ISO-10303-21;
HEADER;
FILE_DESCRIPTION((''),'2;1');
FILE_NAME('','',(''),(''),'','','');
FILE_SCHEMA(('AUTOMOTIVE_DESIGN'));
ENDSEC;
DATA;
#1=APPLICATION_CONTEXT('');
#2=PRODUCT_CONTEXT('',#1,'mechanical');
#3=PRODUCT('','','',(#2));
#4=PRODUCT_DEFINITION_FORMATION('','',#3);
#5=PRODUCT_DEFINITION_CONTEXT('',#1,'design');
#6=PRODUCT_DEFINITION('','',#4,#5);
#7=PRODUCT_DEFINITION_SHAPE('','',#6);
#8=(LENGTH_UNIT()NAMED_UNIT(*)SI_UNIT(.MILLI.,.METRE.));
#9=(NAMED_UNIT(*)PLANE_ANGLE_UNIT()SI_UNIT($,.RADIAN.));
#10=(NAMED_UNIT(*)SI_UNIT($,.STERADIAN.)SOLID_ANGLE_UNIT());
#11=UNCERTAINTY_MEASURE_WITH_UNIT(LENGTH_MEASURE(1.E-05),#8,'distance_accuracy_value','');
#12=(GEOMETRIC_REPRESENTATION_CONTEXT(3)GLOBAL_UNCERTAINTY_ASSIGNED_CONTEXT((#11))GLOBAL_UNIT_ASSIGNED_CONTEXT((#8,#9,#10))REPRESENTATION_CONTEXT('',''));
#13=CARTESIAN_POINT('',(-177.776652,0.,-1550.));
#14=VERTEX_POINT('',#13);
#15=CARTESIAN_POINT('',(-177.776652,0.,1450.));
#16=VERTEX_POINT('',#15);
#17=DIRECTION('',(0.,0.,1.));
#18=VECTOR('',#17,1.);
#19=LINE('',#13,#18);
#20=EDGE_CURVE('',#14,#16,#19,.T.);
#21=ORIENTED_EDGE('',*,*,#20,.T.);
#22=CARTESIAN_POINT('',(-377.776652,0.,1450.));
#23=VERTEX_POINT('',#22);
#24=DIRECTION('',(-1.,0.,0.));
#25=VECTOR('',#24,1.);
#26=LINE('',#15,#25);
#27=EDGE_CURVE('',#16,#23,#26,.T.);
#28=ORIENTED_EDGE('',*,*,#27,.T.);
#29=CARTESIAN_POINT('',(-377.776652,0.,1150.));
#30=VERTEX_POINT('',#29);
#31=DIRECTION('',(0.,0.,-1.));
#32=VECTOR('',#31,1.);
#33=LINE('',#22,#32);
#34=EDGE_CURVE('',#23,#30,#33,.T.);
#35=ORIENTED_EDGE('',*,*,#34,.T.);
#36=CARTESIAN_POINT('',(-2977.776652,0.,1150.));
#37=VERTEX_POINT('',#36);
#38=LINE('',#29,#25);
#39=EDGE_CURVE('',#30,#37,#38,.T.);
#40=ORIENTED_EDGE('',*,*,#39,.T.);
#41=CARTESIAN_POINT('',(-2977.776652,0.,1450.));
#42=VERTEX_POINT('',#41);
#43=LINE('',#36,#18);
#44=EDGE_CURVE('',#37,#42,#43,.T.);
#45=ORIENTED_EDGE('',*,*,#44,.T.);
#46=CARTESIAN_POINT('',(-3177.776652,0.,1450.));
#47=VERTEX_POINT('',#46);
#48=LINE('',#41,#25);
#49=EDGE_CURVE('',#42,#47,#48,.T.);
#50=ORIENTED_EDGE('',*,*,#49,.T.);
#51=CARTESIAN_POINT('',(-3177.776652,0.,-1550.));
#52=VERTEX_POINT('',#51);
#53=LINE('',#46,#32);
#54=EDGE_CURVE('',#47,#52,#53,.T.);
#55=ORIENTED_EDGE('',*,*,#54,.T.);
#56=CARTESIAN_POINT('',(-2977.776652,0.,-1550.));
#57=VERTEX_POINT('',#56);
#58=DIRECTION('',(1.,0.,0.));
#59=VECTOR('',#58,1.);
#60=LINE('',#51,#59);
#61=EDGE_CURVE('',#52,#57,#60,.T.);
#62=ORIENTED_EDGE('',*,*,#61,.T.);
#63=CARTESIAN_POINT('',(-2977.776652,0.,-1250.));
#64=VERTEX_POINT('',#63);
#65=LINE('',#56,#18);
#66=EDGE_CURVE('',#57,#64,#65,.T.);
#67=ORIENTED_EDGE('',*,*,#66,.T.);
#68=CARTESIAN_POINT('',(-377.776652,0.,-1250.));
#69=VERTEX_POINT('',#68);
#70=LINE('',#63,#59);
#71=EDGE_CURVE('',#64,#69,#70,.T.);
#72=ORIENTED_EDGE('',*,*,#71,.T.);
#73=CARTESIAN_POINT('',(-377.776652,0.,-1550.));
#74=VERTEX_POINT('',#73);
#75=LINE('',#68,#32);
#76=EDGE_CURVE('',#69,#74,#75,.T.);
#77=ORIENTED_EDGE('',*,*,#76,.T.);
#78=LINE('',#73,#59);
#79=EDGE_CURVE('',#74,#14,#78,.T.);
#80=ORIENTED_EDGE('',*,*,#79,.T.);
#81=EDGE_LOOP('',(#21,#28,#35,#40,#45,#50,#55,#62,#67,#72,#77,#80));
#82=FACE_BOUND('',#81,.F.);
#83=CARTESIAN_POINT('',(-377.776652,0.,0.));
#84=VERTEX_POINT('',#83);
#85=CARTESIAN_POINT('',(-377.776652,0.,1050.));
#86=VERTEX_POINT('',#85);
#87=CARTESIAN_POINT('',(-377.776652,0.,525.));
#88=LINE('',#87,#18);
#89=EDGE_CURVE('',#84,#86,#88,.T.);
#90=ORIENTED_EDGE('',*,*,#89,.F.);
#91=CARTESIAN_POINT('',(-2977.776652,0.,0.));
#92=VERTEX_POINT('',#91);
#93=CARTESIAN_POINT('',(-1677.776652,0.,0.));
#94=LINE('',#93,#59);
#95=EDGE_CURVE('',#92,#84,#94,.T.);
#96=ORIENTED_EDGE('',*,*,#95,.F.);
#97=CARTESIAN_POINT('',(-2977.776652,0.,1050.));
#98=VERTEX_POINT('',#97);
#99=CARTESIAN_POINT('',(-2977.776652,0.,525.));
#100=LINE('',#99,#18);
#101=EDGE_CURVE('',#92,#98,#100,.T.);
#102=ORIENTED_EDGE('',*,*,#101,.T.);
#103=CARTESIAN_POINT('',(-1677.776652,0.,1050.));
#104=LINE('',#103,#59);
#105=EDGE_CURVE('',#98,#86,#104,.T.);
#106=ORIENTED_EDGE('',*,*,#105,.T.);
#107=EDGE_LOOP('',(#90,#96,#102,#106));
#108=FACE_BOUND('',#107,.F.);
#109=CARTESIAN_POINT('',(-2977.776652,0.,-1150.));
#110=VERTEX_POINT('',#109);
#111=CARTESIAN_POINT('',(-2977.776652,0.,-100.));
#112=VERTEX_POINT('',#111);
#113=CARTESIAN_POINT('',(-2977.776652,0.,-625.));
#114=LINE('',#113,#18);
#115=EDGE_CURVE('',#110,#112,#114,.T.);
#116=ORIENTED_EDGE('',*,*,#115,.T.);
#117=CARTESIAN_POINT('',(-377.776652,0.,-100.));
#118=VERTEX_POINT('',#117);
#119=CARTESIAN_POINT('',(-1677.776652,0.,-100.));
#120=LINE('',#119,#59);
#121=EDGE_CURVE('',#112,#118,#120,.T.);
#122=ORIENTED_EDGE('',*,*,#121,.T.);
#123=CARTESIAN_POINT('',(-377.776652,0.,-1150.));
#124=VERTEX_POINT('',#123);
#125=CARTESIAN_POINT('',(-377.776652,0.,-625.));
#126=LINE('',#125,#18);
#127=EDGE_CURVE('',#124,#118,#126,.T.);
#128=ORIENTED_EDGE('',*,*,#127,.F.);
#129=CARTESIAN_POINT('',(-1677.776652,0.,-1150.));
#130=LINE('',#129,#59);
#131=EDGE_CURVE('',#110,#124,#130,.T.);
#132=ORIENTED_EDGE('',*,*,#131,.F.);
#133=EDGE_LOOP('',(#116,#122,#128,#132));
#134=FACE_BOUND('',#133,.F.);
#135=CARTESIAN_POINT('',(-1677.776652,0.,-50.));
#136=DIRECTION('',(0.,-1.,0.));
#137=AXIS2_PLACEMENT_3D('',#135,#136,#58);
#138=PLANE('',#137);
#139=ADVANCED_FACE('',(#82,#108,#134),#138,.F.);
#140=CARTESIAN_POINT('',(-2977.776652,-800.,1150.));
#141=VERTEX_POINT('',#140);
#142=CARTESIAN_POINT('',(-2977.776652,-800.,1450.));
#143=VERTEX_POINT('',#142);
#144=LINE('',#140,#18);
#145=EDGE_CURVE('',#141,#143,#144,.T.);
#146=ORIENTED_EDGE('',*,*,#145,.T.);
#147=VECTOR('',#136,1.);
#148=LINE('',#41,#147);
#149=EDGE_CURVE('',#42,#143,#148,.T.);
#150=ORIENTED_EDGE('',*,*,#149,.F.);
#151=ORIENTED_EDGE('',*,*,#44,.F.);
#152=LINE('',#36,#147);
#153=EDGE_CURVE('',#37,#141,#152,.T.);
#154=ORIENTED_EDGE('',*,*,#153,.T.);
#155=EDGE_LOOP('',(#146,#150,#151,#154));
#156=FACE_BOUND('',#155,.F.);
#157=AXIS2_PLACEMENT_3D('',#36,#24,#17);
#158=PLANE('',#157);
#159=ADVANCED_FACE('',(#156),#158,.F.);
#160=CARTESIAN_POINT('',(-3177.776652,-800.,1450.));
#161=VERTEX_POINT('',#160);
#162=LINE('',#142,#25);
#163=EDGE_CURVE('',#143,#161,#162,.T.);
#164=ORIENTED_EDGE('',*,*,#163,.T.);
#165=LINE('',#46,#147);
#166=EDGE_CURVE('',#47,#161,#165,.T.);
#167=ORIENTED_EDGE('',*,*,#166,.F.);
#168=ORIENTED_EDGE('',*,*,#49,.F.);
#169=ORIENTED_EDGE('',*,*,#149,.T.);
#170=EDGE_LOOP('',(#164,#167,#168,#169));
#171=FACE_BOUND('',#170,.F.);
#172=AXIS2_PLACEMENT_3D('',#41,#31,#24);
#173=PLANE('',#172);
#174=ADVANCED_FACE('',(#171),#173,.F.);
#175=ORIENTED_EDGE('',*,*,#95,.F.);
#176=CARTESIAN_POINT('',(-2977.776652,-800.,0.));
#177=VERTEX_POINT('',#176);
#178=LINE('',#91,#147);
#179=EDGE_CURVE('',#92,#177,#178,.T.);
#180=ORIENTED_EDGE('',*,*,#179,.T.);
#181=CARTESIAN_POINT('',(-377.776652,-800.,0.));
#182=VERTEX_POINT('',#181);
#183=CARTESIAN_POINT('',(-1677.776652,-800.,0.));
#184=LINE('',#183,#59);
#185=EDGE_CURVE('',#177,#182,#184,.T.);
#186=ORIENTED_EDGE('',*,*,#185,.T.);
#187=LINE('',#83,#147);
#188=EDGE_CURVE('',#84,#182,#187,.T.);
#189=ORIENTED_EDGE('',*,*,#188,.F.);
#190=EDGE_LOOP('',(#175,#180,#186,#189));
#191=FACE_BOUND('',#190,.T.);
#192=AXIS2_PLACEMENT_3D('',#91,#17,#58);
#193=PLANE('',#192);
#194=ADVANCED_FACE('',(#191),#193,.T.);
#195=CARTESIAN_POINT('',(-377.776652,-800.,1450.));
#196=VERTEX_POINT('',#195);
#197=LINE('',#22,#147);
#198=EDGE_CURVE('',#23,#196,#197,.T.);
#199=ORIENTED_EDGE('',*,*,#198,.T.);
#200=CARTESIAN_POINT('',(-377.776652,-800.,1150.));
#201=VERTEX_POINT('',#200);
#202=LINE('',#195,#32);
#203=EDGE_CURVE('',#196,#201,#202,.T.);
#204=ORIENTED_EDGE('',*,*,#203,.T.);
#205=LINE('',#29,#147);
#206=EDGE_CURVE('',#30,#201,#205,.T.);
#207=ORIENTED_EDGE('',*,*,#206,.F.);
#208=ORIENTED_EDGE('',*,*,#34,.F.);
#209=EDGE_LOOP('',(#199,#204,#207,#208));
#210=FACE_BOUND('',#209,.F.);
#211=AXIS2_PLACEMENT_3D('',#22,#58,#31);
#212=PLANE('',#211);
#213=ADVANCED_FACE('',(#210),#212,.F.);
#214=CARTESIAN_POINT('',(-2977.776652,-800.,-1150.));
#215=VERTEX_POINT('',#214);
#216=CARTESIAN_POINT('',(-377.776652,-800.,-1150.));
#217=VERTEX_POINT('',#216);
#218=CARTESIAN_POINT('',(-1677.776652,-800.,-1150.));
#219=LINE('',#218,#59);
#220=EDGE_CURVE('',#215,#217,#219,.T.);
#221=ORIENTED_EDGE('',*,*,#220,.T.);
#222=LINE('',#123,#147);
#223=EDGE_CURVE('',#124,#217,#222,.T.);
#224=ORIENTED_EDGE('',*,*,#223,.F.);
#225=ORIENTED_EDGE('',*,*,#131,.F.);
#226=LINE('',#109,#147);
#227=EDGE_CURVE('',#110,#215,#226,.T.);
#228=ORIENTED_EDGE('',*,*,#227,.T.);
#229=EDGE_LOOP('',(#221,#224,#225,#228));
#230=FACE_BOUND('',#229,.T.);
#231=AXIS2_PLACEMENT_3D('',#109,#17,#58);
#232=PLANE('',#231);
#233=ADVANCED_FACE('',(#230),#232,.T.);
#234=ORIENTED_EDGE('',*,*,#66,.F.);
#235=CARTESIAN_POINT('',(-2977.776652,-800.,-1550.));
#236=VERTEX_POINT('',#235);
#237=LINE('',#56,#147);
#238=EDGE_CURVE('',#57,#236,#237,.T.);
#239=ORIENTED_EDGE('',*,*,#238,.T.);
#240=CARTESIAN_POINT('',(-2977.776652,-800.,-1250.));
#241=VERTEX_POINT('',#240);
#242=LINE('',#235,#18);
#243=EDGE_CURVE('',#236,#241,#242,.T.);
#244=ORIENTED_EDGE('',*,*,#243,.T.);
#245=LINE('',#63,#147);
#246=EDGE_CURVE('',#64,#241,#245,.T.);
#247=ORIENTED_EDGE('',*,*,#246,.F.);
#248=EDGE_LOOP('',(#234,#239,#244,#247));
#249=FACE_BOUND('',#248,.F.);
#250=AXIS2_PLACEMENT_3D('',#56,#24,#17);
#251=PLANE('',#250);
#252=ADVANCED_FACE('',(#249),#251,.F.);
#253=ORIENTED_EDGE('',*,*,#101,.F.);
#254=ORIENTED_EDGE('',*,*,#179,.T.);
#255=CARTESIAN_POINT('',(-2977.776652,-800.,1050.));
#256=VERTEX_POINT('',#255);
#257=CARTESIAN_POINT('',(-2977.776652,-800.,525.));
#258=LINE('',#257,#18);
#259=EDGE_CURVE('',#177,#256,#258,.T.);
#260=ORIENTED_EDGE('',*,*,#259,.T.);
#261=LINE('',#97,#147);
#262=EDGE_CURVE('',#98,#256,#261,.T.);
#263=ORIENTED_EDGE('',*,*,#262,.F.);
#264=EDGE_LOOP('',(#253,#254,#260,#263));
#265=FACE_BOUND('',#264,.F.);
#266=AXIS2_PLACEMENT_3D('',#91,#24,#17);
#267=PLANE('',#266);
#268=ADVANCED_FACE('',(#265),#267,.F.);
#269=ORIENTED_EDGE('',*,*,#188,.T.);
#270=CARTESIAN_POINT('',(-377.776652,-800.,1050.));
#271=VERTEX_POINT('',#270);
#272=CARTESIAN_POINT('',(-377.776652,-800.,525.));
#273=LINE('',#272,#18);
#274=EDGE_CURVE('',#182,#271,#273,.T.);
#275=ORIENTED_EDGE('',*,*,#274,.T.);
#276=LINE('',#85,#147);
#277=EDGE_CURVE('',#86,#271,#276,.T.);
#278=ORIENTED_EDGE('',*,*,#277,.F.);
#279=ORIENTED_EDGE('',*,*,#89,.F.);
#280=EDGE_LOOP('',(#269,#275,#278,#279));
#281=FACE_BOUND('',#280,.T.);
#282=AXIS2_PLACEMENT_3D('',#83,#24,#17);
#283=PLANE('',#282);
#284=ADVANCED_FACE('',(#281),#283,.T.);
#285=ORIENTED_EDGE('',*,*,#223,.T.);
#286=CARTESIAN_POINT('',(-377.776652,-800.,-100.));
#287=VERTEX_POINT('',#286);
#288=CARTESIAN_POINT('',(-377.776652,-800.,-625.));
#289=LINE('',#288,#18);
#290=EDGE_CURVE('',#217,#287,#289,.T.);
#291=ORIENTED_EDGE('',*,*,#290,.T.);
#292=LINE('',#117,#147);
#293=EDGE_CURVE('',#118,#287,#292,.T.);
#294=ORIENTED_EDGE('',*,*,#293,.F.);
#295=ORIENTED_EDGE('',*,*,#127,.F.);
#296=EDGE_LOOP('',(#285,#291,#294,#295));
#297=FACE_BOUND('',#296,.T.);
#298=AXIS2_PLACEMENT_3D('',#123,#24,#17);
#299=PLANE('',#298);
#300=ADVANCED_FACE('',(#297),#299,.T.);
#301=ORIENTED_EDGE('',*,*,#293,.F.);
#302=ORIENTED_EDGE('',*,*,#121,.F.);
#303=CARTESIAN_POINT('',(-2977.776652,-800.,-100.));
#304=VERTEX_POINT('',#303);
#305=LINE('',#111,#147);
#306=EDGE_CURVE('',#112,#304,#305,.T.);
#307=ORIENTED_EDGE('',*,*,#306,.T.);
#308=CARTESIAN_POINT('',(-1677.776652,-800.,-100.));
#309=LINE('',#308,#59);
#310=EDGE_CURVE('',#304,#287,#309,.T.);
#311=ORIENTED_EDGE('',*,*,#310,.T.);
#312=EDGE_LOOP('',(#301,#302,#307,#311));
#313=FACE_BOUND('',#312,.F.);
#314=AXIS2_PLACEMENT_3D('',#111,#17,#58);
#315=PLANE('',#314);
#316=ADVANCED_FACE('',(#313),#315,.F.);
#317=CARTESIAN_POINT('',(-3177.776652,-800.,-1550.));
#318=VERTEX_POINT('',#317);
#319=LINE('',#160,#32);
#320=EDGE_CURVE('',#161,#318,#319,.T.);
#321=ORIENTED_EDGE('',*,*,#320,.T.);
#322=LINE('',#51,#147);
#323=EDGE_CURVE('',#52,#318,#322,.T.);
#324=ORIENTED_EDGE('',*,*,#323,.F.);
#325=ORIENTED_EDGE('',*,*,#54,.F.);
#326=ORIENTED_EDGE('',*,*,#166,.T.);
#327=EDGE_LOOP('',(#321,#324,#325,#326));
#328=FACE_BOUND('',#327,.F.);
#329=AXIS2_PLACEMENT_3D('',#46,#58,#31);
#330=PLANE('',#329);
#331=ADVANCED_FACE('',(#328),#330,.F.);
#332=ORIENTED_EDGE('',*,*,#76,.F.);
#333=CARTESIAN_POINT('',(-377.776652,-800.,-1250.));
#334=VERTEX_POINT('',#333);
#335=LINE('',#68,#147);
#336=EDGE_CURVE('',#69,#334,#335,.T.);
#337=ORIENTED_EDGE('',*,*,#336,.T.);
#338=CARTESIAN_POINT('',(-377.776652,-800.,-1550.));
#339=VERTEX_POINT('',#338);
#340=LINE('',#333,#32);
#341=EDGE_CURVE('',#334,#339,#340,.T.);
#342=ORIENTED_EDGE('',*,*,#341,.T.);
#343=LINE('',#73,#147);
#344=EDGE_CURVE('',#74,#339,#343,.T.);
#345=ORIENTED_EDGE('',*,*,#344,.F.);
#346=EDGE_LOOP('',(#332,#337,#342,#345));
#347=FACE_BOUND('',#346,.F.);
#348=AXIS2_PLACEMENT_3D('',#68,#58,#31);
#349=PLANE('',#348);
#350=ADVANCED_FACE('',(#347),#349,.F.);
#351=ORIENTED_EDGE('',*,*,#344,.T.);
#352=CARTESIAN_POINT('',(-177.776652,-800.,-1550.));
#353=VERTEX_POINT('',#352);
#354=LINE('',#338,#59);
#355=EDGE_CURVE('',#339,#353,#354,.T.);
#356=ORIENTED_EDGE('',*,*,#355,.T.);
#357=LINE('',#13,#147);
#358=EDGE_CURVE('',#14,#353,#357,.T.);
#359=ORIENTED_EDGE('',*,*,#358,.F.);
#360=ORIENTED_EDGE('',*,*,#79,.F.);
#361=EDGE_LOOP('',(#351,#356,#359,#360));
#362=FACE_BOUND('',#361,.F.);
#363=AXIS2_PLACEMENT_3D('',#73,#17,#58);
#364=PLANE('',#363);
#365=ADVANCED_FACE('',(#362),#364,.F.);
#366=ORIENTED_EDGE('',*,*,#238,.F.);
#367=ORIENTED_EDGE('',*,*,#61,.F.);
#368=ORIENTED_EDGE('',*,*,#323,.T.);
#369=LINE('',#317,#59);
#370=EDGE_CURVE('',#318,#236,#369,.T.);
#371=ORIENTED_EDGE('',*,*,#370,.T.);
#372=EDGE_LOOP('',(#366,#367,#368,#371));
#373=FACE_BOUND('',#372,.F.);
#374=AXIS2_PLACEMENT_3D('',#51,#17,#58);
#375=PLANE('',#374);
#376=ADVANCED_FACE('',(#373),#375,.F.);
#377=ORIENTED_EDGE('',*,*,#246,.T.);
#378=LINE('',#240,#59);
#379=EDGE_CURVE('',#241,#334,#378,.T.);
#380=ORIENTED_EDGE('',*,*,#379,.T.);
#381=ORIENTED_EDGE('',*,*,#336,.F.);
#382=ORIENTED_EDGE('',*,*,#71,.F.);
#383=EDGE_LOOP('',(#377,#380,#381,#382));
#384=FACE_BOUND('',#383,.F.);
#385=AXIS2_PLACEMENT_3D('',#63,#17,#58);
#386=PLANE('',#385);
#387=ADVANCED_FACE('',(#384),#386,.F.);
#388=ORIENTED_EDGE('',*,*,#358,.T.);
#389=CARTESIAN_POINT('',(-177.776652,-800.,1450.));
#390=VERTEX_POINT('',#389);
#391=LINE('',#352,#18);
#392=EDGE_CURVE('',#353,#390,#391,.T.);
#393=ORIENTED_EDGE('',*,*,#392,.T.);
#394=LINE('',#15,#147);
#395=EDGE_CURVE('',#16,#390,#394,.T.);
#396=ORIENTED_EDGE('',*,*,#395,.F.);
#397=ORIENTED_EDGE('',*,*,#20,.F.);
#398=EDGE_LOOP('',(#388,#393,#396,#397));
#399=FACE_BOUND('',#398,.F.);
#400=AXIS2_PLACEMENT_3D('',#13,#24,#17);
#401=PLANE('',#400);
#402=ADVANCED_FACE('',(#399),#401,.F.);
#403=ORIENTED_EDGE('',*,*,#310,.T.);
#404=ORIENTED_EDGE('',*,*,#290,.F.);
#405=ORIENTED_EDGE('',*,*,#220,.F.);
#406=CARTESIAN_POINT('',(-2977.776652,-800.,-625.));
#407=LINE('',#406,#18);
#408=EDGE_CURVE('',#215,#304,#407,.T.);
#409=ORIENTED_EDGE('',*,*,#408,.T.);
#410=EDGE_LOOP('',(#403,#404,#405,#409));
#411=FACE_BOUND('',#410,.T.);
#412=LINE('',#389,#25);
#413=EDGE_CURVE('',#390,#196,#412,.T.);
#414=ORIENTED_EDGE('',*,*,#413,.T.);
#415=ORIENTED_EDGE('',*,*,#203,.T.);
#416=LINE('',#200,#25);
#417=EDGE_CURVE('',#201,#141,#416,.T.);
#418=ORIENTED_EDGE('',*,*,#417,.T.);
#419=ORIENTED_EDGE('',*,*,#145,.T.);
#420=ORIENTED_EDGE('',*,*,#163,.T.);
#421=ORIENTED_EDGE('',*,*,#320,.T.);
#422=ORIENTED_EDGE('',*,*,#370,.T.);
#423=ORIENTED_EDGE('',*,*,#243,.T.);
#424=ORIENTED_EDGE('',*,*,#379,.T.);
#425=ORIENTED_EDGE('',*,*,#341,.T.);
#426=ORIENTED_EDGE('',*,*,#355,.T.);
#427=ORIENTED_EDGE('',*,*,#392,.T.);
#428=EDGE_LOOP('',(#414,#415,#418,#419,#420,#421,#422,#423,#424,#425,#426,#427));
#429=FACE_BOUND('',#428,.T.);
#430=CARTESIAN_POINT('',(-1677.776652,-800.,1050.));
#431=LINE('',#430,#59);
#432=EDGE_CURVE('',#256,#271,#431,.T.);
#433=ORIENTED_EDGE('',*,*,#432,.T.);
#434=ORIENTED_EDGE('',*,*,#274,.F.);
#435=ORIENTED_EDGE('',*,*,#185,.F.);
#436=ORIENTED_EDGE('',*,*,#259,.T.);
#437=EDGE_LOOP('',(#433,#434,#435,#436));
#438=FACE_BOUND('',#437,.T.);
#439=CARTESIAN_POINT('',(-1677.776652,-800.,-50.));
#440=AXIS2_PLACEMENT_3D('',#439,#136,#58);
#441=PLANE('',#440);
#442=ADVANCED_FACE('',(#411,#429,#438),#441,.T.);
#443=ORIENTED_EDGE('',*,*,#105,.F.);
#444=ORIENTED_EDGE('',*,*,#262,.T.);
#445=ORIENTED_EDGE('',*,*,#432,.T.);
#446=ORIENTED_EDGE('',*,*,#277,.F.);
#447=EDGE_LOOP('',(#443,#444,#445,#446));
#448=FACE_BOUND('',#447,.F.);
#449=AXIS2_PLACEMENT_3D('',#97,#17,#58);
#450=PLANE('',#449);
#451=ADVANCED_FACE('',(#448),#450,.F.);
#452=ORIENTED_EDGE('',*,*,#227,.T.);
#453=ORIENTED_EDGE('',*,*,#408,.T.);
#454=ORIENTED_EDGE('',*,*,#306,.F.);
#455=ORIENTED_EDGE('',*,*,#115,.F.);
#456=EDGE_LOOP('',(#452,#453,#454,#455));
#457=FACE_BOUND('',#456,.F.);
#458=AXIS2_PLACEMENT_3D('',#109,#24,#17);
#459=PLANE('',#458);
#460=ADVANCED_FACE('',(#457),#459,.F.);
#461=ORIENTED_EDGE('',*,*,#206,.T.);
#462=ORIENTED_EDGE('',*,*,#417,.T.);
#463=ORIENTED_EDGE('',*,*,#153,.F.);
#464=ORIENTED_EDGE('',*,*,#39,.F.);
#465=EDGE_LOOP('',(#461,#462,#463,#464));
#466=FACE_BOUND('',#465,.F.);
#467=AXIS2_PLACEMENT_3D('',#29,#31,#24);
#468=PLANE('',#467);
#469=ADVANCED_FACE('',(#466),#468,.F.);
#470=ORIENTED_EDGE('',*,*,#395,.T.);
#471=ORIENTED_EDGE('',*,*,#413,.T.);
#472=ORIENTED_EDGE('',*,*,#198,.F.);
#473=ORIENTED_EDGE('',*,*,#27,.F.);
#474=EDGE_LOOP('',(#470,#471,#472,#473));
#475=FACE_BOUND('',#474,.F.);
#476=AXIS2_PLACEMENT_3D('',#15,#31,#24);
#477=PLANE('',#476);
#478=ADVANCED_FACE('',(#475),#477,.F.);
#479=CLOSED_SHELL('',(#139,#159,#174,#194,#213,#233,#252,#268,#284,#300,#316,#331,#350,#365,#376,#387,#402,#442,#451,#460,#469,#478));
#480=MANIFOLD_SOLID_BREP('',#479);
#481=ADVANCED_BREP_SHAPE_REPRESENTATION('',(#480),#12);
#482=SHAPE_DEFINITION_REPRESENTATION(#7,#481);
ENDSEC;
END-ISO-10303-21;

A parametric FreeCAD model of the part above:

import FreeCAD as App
import Part
import Sketcher
from FreeCAD import Vector
Q = App.Units.Quantity


def add_polygon(sketch, points):
    """Adds a closed chain of lines whose ends are joined by coincident constraints."""
    first, n = sketch.GeometryCount, len(points)
    for a, b in zip(points, points[1:] + points[:1]):
        sketch.addGeometry(Part.LineSegment(App.Vector(*a, 0), App.Vector(*b, 0)), False)
    for i in range(n):
        sketch.addConstraint(Sketcher.Constraint("Coincident", first + i, 2, first + (i + 1) % n, 1))

doc = App.newDocument("Part")
body = doc.addObject("PartDesign::Body", "Body")

# Sketch on XZ plane
sketch1 = body.newObject("Sketcher::SketchObject", "Sketch")
sketch1.AttachmentSupport = (doc.getObject("XZ_Plane"), [""])
sketch1.MapMode = "FlatFace"
add_polygon(sketch1, [(-2978, -1550), (-2978, -1250), (-378, -1250), (-378, -1550), (-178, -1550), (-178, 1450), (-378, 1450), (-378, 1150), (-2978, 1150), (-2978, 1450), (-3178, 1450), (-3178, -1550)])  # lines 0-11
add_polygon(sketch1, [(-378, -1150), (-2978, -1150), (-2978, -100), (-378, -100)])  # lines 12-15
add_polygon(sketch1, [(-378, 0), (-2978, 0), (-2978, 1050), (-378, 1050)])  # lines 16-19
sketch1.addConstraint([
    Sketcher.Constraint("Vertical", 0),
    Sketcher.Constraint("Horizontal", 1),
    Sketcher.Constraint("Vertical", 2),
    Sketcher.Constraint("Horizontal", 3),
    Sketcher.Constraint("Vertical", 4),
    Sketcher.Constraint("Horizontal", 5),
    Sketcher.Constraint("Vertical", 6),
    Sketcher.Constraint("Horizontal", 7),
    Sketcher.Constraint("Vertical", 8),
    Sketcher.Constraint("Horizontal", 9),
    Sketcher.Constraint("Vertical", 10),
    Sketcher.Constraint("Horizontal", 11),
    Sketcher.Constraint("Horizontal", 12),
    Sketcher.Constraint("Vertical", 13),
    Sketcher.Constraint("Horizontal", 14),
    Sketcher.Constraint("Vertical", 15),
    Sketcher.Constraint("Horizontal", 16),
    Sketcher.Constraint("Vertical", 17),
    Sketcher.Constraint("Horizontal", 18),
    Sketcher.Constraint("Vertical", 19),
    Sketcher.Constraint("Symmetric", 7, 2, 12, 2, -1),
    Sketcher.Constraint("PointOnObject", 16, 2, -1),
    Sketcher.Constraint("Horizontal", 5, 2, 8, 2),
    Sketcher.Constraint("Horizontal", 3, 2, 10, 2),
    Sketcher.Constraint("Vertical", 2, 2, 5, 2),
    Sketcher.Constraint("Vertical", 0, 2, 7, 2),
    Sketcher.Constraint("Vertical", 6, 2, 14, 2),
    Sketcher.Constraint("Vertical", 13, 2, 16, 2),
    Sketcher.Constraint("Vertical", 15, 2, 18, 2),
    Sketcher.Constraint("Equal", 5, 9),
    Sketcher.Constraint("Equal", 2, 6),
    Sketcher.Constraint("Equal", 15, 17),
    Sketcher.Constraint("DistanceX", 1, 1, 1, 2, Q("2600 mm")),
    Sketcher.Constraint("DistanceX", 3, 1, 3, 2, Q("200 mm")),
    Sketcher.Constraint("DistanceY", 0, 1, 0, 2, Q("300 mm")),
    Sketcher.Constraint("DistanceY", 4, 1, 4, 2, Q("3000 mm")),
    Sketcher.Constraint("DistanceY", 13, 1, 13, 2, Q("1050 mm")),
    Sketcher.Constraint("DistanceY", 0, 2, -1, 1, Q("1250 mm")),
    Sketcher.Constraint("DistanceX", 1, 2, -1, 1, Q("377.776652 mm")),
])
pad1 = body.newObject("PartDesign::Pad", "Pad")
pad1.Profile = sketch1
pad1.Length = 800

doc.recompute()
